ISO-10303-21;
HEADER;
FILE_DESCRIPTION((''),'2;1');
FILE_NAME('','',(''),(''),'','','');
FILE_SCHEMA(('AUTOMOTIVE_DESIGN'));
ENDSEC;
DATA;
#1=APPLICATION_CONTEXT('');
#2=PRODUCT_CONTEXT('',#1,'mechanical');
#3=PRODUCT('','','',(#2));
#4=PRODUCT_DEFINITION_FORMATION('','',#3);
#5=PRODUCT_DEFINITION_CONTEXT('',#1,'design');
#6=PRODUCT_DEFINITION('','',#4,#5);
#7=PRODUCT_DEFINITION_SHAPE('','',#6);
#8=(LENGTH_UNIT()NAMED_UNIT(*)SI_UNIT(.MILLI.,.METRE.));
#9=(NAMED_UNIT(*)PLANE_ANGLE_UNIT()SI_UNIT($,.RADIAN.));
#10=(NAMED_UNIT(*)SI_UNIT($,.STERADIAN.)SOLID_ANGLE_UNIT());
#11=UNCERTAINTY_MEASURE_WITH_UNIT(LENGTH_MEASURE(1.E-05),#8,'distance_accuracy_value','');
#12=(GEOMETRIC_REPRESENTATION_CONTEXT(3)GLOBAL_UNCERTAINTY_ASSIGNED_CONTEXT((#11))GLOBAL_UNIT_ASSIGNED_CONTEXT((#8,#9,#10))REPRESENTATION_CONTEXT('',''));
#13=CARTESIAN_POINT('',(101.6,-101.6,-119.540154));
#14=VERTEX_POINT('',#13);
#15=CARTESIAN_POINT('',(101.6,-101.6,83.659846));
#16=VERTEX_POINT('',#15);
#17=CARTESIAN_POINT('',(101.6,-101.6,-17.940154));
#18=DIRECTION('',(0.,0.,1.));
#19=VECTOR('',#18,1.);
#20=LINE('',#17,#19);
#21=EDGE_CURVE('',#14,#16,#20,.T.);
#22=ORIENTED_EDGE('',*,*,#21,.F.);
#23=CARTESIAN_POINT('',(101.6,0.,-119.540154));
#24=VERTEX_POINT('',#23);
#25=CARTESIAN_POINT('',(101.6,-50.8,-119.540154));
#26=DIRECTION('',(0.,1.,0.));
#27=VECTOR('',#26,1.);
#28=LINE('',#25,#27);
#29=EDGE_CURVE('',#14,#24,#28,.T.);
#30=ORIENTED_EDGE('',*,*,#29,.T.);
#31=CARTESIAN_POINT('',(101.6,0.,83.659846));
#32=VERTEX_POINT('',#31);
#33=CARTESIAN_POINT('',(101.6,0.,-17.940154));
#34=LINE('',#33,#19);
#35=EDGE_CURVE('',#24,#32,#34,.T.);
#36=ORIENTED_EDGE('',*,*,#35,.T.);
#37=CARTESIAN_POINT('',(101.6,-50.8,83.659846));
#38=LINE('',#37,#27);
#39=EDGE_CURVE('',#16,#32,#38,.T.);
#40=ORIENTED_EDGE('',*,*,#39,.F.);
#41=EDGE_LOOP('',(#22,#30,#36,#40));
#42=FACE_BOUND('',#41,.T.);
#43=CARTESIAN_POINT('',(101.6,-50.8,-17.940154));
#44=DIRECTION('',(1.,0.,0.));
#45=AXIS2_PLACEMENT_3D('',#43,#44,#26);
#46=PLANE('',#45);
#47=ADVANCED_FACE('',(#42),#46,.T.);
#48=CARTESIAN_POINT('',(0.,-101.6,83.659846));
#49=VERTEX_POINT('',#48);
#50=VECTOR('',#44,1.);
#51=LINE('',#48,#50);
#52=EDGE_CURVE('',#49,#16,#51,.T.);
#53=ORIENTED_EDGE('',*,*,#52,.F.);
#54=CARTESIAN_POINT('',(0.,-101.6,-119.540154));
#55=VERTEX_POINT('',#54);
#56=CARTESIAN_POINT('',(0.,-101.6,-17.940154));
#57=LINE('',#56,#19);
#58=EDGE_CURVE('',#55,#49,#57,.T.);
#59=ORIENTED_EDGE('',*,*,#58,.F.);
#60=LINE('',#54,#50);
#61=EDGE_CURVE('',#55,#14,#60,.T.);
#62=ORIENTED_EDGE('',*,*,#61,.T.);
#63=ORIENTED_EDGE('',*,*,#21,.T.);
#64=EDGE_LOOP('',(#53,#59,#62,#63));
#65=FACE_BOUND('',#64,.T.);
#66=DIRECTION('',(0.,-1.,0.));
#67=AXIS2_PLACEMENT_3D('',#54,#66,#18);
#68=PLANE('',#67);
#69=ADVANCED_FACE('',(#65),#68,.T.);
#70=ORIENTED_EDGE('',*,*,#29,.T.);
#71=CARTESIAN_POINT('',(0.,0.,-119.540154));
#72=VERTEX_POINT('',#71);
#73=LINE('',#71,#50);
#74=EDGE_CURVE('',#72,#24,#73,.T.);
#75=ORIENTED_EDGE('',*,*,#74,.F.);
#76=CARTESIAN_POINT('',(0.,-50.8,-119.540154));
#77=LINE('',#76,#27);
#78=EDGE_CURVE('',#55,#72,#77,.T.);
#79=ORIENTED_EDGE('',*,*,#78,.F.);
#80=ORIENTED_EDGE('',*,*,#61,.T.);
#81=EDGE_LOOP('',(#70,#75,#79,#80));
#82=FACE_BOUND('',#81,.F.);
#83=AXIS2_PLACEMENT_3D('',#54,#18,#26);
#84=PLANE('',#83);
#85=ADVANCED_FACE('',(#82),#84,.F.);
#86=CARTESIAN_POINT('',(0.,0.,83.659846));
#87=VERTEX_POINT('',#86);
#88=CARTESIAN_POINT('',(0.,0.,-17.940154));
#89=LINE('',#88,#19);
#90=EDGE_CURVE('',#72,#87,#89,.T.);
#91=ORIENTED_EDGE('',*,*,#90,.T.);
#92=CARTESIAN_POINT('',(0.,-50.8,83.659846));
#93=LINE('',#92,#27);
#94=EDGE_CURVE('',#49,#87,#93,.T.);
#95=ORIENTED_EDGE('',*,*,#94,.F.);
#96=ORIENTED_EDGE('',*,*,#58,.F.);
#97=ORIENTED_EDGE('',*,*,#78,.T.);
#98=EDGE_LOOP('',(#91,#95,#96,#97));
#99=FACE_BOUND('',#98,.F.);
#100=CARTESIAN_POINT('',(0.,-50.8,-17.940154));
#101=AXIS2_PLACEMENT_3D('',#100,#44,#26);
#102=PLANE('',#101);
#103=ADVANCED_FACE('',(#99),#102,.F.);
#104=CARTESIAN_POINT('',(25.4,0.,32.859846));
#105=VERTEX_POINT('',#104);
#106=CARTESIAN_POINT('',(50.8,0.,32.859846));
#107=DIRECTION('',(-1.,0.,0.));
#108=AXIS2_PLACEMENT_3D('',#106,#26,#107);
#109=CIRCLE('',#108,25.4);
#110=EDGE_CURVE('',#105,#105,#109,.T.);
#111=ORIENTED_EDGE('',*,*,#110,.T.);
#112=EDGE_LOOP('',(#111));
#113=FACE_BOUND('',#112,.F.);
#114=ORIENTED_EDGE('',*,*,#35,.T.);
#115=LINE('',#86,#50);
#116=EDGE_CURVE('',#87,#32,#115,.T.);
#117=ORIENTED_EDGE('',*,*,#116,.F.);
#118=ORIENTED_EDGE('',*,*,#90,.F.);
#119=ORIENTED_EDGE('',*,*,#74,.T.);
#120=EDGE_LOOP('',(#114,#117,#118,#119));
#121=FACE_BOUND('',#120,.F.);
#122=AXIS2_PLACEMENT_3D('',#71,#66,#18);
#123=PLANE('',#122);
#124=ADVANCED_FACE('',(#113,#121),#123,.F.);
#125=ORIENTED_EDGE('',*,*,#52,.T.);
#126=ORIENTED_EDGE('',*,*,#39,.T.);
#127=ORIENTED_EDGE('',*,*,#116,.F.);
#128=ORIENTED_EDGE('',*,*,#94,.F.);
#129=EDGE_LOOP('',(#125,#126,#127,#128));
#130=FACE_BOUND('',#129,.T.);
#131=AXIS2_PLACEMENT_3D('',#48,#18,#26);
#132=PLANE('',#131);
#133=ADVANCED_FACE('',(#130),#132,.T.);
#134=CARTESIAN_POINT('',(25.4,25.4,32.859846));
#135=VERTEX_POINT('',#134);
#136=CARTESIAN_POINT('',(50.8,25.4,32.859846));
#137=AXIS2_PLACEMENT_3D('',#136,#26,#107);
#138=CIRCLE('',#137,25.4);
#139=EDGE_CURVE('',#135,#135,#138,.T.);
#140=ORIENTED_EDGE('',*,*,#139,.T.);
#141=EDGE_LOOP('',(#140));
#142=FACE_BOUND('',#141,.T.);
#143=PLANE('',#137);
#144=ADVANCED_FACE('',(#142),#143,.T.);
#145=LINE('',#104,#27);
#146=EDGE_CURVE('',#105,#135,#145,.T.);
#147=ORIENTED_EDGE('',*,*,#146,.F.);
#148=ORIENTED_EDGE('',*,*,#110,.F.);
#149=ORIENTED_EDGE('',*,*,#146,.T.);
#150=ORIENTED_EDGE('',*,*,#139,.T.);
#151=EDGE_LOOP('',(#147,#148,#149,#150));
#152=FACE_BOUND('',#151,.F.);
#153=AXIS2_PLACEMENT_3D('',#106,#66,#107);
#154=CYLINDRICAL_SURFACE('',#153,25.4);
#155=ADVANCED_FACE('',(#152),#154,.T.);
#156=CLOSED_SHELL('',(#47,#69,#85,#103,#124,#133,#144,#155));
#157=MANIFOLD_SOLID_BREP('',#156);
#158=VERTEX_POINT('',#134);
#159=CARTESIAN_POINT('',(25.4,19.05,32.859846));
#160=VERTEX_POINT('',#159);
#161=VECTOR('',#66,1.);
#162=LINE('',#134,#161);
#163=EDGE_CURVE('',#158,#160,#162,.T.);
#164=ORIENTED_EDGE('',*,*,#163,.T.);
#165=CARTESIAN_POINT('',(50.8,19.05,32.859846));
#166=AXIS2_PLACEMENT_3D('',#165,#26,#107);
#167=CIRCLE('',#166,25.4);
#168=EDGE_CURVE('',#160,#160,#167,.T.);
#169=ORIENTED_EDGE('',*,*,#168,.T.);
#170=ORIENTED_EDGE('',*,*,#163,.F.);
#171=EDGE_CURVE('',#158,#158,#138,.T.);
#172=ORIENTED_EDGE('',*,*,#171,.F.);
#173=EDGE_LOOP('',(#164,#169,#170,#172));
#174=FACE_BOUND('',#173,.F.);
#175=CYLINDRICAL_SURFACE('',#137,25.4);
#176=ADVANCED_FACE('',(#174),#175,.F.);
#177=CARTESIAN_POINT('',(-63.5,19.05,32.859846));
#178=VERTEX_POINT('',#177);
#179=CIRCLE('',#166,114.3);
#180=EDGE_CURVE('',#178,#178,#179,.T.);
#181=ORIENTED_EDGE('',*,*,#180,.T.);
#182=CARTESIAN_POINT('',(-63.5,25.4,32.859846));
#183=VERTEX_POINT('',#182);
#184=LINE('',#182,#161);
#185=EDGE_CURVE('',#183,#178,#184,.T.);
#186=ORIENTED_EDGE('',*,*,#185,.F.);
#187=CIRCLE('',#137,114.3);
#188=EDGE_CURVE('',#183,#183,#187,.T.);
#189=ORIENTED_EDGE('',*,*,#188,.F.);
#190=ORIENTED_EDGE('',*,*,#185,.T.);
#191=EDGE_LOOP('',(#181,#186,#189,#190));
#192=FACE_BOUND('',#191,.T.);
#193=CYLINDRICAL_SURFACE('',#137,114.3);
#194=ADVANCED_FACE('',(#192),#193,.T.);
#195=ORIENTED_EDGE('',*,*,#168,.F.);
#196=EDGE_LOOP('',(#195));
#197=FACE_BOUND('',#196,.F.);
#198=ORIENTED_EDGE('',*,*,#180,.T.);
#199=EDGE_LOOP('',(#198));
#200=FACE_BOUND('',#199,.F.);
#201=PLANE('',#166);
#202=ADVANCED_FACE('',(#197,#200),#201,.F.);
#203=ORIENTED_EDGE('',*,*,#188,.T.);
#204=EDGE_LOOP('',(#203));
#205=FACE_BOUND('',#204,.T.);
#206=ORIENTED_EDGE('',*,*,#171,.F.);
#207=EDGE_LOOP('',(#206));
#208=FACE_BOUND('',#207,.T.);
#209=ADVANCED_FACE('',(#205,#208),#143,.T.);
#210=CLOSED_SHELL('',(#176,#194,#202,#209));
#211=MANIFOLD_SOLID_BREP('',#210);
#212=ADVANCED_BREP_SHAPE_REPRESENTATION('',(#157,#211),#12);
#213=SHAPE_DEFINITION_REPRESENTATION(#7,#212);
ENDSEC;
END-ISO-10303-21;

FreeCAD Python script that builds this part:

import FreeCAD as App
import Part
import Sketcher

V = App.Vector
Q = App.Units.Quantity

doc = App.newDocument("Part")
body = doc.addObject("PartDesign::Body", "Body")

# Sketch on YZ plane
sketch1 = body.newObject("Sketcher::SketchObject", "Sketch")
sketch1.AttachmentSupport = (doc.getObject("YZ_Plane"), [""])
sketch1.MapMode = "FlatFace"
sketch1.addGeometry([
    Part.LineSegment(V(-102, 84, 0), V(-102, -120, 0)),
    Part.LineSegment(V(-102, -120, 0), V(0, -120, 0)),
    Part.LineSegment(V(0, -120, 0), V(0, 84, 0)),
    Part.LineSegment(V(0, 84, 0), V(-102, 84, 0)),
], False)
sketch1.addConstraint([
    Sketcher.Constraint("Coincident", 0, 2, 1, 1),
    Sketcher.Constraint("Coincident", 1, 2, 2, 1),
    Sketcher.Constraint("Coincident", 2, 2, 3, 1),
    Sketcher.Constraint("Coincident", 3, 2, 0, 1),
    Sketcher.Constraint("Vertical", 0),
    Sketcher.Constraint("Horizontal", 1),
    Sketcher.Constraint("Vertical", 2),
    Sketcher.Constraint("Horizontal", 3),
    Sketcher.Constraint("PointOnObject", 1, 2, -2),
    Sketcher.Constraint("DistanceX", 1, 1, 1, 2, Q("4 in")),
    Sketcher.Constraint("DistanceY", 0, 2, 0, 1, Q("8 in")),
    Sketcher.Constraint("DistanceY", 0, 2, -1, 1, Q("119.540154 mm")),
])
pad1 = body.newObject("PartDesign::Pad", "Pad")
pad1.Profile = sketch1
pad1.Length = Q("4 in")

# Sketch on XZ plane
sketch2 = body.newObject("Sketcher::SketchObject", "Sketch001")
sketch2.AttachmentSupport = (doc.getObject("XZ_Plane"), [""])
sketch2.MapMode = "FlatFace"
sketch2.addGeometry(Part.Circle(V(51, 33, 0), V(0, 0, 1), 25), False)
sketch2.addConstraint([
    Sketcher.Constraint("Diameter", 0, Q("2 in")),
    Sketcher.Constraint("DistanceX", -1, 1, 0, 3, Q("2 in")),
    Sketcher.Constraint("DistanceY", -1, 1, 0, 3, Q("32.859846 mm")),
])
pad2 = body.newObject("PartDesign::Pad", "Pad001")
pad2.Profile = sketch2
pad2.Length = Q("1 in")
pad2.Reversed = True
body2 = doc.addObject("PartDesign::Body", "Body001")

# Sketch on XZ plane
sketch3 = body2.newObject("Sketcher::SketchObject", "Sketch002")
sketch3.AttachmentSupport = (doc.getObject("XZ_Plane001"), [""])
sketch3.MapMode = "FlatFace"
sketch3.AttachmentOffset = App.Placement(V(0, 0, -1 * 25.4), App.Rotation())
sketch3.addGeometry([
    Part.Circle(V(51, 33, 0), V(0, 0, 1), 114),
    Part.Circle(V(51, 33, 0), V(0, 0, 1), 25),
], False)
sketch3.addConstraint([
    Sketcher.Constraint("Coincident", 1, 3, 0, 3),
    Sketcher.Constraint("Diameter", 0, Q("9 in")),
    Sketcher.Constraint("Diameter", 1, Q("2 in")),
    Sketcher.Constraint("DistanceX", -1, 1, 0, 3, Q("2 in")),
    Sketcher.Constraint("DistanceY", -1, 1, 0, 3, Q("32.859846 mm")),
])
pad3 = body2.newObject("PartDesign::Pad", "Pad002")
pad3.Profile = sketch3
pad3.Length = Q("0.25 in")

doc.recompute()
